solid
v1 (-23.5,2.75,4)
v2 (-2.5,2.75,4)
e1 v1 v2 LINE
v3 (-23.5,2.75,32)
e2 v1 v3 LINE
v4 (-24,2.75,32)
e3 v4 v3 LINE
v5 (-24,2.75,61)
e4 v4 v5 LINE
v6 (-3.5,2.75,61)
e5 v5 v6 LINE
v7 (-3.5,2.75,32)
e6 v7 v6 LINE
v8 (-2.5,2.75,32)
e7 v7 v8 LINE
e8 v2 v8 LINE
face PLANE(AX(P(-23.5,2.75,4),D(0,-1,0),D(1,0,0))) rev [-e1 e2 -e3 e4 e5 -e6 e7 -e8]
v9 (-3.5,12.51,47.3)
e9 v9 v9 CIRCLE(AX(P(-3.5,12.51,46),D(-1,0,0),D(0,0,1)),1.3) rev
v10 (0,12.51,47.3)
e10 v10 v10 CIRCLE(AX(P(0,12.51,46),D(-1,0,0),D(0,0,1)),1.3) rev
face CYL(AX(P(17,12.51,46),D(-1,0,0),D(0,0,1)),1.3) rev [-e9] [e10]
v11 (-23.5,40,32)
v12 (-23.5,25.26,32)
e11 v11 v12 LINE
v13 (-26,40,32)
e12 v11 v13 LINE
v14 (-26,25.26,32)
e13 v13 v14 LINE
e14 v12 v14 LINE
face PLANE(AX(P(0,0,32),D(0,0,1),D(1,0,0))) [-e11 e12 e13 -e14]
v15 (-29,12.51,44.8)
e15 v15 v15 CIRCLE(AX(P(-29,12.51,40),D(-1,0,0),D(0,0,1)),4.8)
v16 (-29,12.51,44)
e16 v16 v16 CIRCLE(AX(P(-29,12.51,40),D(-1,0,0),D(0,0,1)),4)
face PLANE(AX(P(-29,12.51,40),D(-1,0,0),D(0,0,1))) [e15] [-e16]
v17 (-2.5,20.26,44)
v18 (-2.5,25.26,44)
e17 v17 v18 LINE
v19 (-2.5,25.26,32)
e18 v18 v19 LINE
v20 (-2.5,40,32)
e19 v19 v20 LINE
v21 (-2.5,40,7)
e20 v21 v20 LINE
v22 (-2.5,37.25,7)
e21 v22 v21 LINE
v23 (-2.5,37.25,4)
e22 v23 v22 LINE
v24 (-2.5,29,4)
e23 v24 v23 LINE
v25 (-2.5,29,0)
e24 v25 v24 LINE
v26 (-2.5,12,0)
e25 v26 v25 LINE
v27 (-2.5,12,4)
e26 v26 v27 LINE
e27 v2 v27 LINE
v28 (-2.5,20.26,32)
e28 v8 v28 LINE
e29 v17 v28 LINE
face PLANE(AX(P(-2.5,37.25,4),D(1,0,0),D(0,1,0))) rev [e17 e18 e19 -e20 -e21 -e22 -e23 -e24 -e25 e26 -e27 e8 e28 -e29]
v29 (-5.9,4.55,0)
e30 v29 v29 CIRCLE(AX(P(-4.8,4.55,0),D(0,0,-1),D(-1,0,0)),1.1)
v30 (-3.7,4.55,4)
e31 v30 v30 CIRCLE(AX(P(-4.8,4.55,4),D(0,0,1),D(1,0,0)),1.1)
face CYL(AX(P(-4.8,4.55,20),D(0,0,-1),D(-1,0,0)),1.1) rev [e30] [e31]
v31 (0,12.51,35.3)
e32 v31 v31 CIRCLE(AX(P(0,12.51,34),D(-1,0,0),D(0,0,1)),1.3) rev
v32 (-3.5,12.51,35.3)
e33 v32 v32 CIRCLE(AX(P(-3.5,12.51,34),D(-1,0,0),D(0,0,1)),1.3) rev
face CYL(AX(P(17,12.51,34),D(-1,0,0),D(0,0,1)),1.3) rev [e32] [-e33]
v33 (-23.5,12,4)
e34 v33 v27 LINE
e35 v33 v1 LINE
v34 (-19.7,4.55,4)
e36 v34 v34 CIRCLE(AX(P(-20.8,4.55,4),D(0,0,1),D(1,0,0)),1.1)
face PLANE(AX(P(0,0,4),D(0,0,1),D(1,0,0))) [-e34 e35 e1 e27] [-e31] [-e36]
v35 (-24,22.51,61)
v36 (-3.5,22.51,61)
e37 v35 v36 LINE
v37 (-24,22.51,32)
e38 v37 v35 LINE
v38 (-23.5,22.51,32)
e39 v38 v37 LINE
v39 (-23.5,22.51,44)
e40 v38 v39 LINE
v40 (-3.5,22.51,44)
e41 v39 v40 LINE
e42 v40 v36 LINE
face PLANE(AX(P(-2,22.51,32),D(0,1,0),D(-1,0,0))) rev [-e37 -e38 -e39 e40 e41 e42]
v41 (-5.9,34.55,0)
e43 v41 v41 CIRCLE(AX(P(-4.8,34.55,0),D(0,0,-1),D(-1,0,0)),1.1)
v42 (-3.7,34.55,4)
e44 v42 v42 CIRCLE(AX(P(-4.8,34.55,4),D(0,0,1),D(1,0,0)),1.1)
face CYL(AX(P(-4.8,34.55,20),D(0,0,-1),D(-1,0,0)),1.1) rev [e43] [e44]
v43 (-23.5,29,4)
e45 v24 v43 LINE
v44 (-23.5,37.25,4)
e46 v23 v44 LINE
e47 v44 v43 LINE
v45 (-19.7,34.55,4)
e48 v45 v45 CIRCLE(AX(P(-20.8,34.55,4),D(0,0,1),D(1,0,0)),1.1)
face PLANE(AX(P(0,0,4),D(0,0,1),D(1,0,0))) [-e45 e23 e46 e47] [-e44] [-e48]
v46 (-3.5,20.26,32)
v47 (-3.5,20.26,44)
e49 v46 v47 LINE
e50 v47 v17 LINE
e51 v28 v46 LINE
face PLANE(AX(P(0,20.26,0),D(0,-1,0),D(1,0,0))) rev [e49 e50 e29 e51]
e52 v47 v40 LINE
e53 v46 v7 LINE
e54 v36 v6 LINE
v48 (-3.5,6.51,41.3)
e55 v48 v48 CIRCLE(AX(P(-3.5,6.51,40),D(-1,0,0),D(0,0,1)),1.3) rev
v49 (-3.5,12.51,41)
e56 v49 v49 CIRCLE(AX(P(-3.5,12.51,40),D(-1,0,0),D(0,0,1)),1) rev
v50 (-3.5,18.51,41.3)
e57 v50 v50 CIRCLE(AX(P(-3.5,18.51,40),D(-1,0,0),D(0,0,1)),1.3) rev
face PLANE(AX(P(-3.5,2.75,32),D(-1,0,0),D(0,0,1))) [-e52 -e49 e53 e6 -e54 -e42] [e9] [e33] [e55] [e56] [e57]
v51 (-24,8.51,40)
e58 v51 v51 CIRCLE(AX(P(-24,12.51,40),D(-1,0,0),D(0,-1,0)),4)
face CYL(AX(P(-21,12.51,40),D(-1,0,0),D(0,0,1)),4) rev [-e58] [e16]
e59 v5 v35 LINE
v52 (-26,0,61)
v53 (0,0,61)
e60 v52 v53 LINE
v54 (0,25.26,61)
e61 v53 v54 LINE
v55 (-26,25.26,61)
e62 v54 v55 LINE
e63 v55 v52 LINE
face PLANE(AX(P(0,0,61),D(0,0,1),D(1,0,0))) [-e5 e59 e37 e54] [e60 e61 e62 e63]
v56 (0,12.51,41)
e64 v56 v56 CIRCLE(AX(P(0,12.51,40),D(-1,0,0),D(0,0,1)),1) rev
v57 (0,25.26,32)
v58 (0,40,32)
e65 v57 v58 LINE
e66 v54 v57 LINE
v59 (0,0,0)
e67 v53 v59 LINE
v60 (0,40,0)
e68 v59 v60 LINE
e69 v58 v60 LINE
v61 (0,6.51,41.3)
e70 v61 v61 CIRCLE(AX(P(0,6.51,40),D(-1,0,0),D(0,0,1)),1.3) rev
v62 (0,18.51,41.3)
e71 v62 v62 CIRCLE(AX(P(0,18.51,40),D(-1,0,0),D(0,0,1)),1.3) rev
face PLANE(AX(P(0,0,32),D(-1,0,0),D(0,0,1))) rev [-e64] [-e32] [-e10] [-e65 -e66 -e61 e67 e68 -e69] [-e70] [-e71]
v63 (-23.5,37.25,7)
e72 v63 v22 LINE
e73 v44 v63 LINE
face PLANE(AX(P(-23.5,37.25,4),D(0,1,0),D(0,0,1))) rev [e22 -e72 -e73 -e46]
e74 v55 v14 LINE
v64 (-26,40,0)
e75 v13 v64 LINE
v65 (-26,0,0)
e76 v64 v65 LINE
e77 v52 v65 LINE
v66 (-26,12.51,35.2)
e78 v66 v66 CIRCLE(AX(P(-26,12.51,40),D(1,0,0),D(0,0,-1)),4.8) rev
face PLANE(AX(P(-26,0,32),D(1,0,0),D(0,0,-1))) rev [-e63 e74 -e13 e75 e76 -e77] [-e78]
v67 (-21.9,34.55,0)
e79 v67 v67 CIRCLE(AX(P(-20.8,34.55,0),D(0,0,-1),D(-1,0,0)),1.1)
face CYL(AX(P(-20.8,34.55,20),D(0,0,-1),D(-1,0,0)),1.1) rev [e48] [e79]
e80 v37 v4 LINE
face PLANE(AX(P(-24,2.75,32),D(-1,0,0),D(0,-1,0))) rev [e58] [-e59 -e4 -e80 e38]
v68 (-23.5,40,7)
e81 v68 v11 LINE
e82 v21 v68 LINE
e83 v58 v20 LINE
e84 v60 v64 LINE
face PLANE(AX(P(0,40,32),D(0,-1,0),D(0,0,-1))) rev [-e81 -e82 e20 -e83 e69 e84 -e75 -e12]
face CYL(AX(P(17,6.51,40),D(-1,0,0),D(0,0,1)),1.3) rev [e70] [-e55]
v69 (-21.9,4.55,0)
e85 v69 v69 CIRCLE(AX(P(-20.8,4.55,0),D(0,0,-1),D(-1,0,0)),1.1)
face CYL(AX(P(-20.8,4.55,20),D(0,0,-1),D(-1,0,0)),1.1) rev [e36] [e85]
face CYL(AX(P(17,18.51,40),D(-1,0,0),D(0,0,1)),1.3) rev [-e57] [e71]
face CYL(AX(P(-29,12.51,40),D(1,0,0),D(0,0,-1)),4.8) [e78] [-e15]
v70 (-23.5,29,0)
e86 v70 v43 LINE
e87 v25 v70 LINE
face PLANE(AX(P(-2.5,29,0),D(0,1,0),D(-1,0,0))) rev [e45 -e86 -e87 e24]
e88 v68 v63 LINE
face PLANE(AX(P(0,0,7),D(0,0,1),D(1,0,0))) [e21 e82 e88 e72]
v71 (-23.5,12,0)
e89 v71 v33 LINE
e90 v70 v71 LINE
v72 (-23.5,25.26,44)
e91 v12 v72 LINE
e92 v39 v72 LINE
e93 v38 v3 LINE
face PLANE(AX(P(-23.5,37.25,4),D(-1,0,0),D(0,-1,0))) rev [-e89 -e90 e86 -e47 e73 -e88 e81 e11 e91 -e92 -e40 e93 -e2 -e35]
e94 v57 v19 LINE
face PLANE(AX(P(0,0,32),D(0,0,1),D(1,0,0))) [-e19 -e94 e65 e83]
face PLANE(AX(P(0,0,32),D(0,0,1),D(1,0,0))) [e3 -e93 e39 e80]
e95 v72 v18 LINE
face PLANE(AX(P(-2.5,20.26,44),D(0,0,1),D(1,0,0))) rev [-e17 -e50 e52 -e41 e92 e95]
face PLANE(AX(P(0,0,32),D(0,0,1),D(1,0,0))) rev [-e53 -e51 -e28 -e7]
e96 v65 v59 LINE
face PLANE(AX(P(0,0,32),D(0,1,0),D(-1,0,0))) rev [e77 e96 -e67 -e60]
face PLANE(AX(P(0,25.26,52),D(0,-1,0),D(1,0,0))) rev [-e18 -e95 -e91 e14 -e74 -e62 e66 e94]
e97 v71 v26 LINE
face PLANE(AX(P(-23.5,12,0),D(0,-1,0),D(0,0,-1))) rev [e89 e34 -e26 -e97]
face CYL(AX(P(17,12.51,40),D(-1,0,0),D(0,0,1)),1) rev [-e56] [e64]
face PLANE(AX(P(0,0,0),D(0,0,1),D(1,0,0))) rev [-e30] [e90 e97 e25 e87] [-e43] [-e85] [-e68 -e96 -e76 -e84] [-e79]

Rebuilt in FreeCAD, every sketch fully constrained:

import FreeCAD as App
import Part
import Sketcher
Q = App.Units.Quantity


def add_polygon(sketch, points):
    """Adds a closed chain of lines whose ends are joined by coincident constraints."""
    first, n = sketch.GeometryCount, len(points)
    for a, b in zip(points, points[1:] + points[:1]):
        sketch.addGeometry(Part.LineSegment(App.Vector(*a, 0), App.Vector(*b, 0)), False)
    for i in range(n):
        sketch.addConstraint(Sketcher.Constraint("Coincident", first + i, 2, first + (i + 1) % n, 1))

doc = App.newDocument("Part")
body = doc.addObject("PartDesign::Body", "Body")

# Sketch on XY plane
sketch1 = body.newObject("Sketcher::SketchObject", "Sketch")
sketch1.AttachmentSupport = (doc.getObject("XY_Plane"), [""])
sketch1.MapMode = "FlatFace"
add_polygon(sketch1, [(-26, 40), (-26, 0), (0, 0), (0, 40)])  # lines 0-3
sketch1.addConstraint(Sketcher.Constraint("Vertical", 0))
sketch1.addConstraint(Sketcher.Constraint("Horizontal", 1))
sketch1.addConstraint(Sketcher.Constraint("Vertical", 2))
sketch1.addConstraint(Sketcher.Constraint("Horizontal", 3))
sketch1.addConstraint(Sketcher.Constraint("Coincident", 1, 2, -1, 1))
sketch1.addConstraint(Sketcher.Constraint("DistanceX", 1, 1, 1, 2, Q("26 mm")))
sketch1.addConstraint(Sketcher.Constraint("DistanceY", 0, 2, 0, 1, Q("40 mm")))
pad1 = body.newObject("PartDesign::Pad", "Pad")
pad1.Profile = sketch1
pad1.Length = 32

# Sketch on XY plane
sketch2 = body.newObject("Sketcher::SketchObject", "Sketch001")
sketch2.AttachmentSupport = (doc.getObject("XY_Plane"), [""])
sketch2.MapMode = "FlatFace"
sketch2.AttachmentOffset = App.Placement(App.Vector(0, 0, 32), App.Rotation())
add_polygon(sketch2, [(-23.5, 37.25), (-23.5, 2.75), (-2.5, 2.75), (-2.5, 37.25)])  # lines 0-3
sketch2.addConstraint(Sketcher.Constraint("Vertical", 0))
sketch2.addConstraint(Sketcher.Constraint("Horizontal", 1))
sketch2.addConstraint(Sketcher.Constraint("Vertical", 2))
sketch2.addConstraint(Sketcher.Constraint("Horizontal", 3))
sketch2.addConstraint(Sketcher.Constraint("DistanceX", 1, 1, 1, 2, Q("21 mm")))
sketch2.addConstraint(Sketcher.Constraint("DistanceY", 0, 2, 0, 1, Q("34.5 mm")))
sketch2.addConstraint(Sketcher.Constraint("DistanceX", 0, 2, -1, 1, Q("23.5 mm")))
sketch2.addConstraint(Sketcher.Constraint("DistanceY", -1, 1, 0, 2, Q("2.75 mm")))
pocket1 = body.newObject("PartDesign::Pocket", "Pocket")
pocket1.Profile = sketch2
pocket1.Length = 28

# Sketch on XY plane
sketch3 = body.newObject("Sketcher::SketchObject", "Sketch002")
sketch3.AttachmentSupport = (doc.getObject("XY_Plane"), [""])
sketch3.MapMode = "FlatFace"
sketch3.AttachmentOffset = App.Placement(App.Vector(0, 0, 32), App.Rotation())
add_polygon(sketch3, [(-26, 25.26), (-26, 0), (0, 0), (0, 25.26)])  # lines 0-3
sketch3.addConstraint(Sketcher.Constraint("Vertical", 0))
sketch3.addConstraint(Sketcher.Constraint("Horizontal", 1))
sketch3.addConstraint(Sketcher.Constraint("Vertical", 2))
sketch3.addConstraint(Sketcher.Constraint("Horizontal", 3))
sketch3.addConstraint(Sketcher.Constraint("Coincident", 1, 2, -1, 1))
sketch3.addConstraint(Sketcher.Constraint("DistanceX", 1, 1, 1, 2, Q("26 mm")))
sketch3.addConstraint(Sketcher.Constraint("DistanceY", 0, 2, 0, 1, Q("25.26 mm")))
pad2 = body.newObject("PartDesign::Pad", "Pad001")
pad2.Profile = sketch3
pad2.Length = 20

# Sketch on XY plane
sketch4 = body.newObject("Sketcher::SketchObject", "Sketch003")
sketch4.AttachmentSupport = (doc.getObject("XY_Plane"), [""])
sketch4.MapMode = "FlatFace"
sketch4.AttachmentOffset = App.Placement(App.Vector(0, 0, 52), App.Rotation())
add_polygon(sketch4, [(-24, 22.51), (-24, 2.75), (-2, 2.75), (-2, 22.51)])  # lines 0-3
sketch4.addConstraint(Sketcher.Constraint("Vertical", 0))
sketch4.addConstraint(Sketcher.Constraint("Horizontal", 1))
sketch4.addConstraint(Sketcher.Constraint("Vertical", 2))
sketch4.addConstraint(Sketcher.Constraint("Horizontal", 3))
sketch4.addConstraint(Sketcher.Constraint("DistanceX", 1, 1, 1, 2, Q("22 mm")))
sketch4.addConstraint(Sketcher.Constraint("DistanceX", 0, 2, -1, 1, Q("24 mm")))
sketch4.addConstraint(Sketcher.Constraint("DistanceY", 0, 2, 0, 1, Q("19.76 mm")))
sketch4.addConstraint(Sketcher.Constraint("DistanceY", -1, 1, 0, 2, Q("2.75 mm")))
pocket2 = body.newObject("PartDesign::Pocket", "Pocket001")
pocket2.Profile = sketch4
pocket2.Length = 20

# Sketch on XY plane
sketch5 = body.newObject("Sketcher::SketchObject", "Sketch004")
sketch5.AttachmentSupport = (doc.getObject("XY_Plane"), [""])
sketch5.MapMode = "FlatFace"
sketch5.AttachmentOffset = App.Placement(App.Vector(0, 0, 32), App.Rotation())
add_polygon(sketch5, [(-23.5, 40), (-23.5, 37.25), (-2.5, 37.25), (-2.5, 40)])  # lines 0-3
sketch5.addConstraint(Sketcher.Constraint("Vertical", 0))
sketch5.addConstraint(Sketcher.Constraint("Horizontal", 1))
sketch5.addConstraint(Sketcher.Constraint("Vertical", 2))
sketch5.addConstraint(Sketcher.Constraint("Horizontal", 3))
sketch5.addConstraint(Sketcher.Constraint("DistanceX", 1, 1, 1, 2, Q("21 mm")))
sketch5.addConstraint(Sketcher.Constraint("DistanceY", -1, 1, 2, 2, Q("40 mm")))
sketch5.addConstraint(Sketcher.Constraint("DistanceY", 0, 2, 0, 1, Q("2.75 mm")))
sketch5.addConstraint(Sketcher.Constraint("DistanceX", 0, 2, -1, 1, Q("23.5 mm")))
pocket3 = body.newObject("PartDesign::Pocket", "Pocket002")
pocket3.Profile = sketch5
pocket3.Length = 25

# Sketch on XY plane
sketch6 = body.newObject("Sketcher::SketchObject", "Sketch005")
sketch6.AttachmentSupport = (doc.getObject("XY_Plane"), [""])
sketch6.MapMode = "FlatFace"
sketch6.addGeometry(Part.Circle(App.Vector(-4.8, 4.55, 0), App.Vector(0, 0, 1), 1.1), False)
sketch6.addGeometry(Part.Circle(App.Vector(-20.8, 4.55, 0), App.Vector(0, 0, 1), 1.1), False)
sketch6.addGeometry(Part.Circle(App.Vector(-20.8, 34.55, 0), App.Vector(0, 0, 1), 1.1), False)
sketch6.addGeometry(Part.Circle(App.Vector(-4.8, 34.55, 0), App.Vector(0, 0, 1), 1.1), False)
sketch6.addConstraint(Sketcher.Constraint("Equal", 0, 1))
sketch6.addConstraint(Sketcher.Constraint("Equal", 1, 2))
sketch6.addConstraint(Sketcher.Constraint("Equal", 2, 3))
sketch6.addConstraint(Sketcher.Constraint("Horizontal", 0, 3, 1, 3))
sketch6.addConstraint(Sketcher.Constraint("Horizontal", 2, 3, 3, 3))
sketch6.addConstraint(Sketcher.Constraint("Vertical", 1, 3, 2, 3))
sketch6.addConstraint(Sketcher.Constraint("Vertical", 0, 3, 3, 3))
sketch6.addConstraint(Sketcher.Constraint("Diameter", 0, Q("2.2 mm")))
sketch6.addConstraint(Sketcher.Constraint("DistanceX", 1, 3, 0, 3, Q("16 mm")))
sketch6.addConstraint(Sketcher.Constraint("DistanceY", 1, 3, 2, 3, Q("30 mm")))
sketch6.addConstraint(Sketcher.Constraint("DistanceX", 0, 3, -1, 1, Q("4.8 mm")))
sketch6.addConstraint(Sketcher.Constraint("DistanceY", -1, 1, 0, 3, Q("4.55 mm")))
pocket4 = body.newObject("PartDesign::Pocket", "Pocket003")
pocket4.Profile = sketch6
pocket4.Length = 20
pocket4.Reversed = True

# Sketch on YZ plane
sketch7 = body.newObject("Sketcher::SketchObject", "Sketch006")
sketch7.AttachmentSupport = (doc.getObject("YZ_Plane"), [""])
sketch7.MapMode = "FlatFace"
sketch7.AttachmentOffset = App.Placement(App.Vector(0, 0, -26), App.Rotation())
sketch7.addGeometry(Part.Circle(App.Vector(12.51, 40, 0), App.Vector(0, 0, 1), 4), False)
sketch7.addConstraint(Sketcher.Constraint("Diameter", 0, Q("8 mm")))
sketch7.addConstraint(Sketcher.Constraint("DistanceY", -1, 1, 0, 3, Q("40 mm")))
sketch7.addConstraint(Sketcher.Constraint("DistanceX", -1, 1, 0, 3, Q("12.51 mm")))
pocket5 = body.newObject("PartDesign::Pocket", "Pocket004")
pocket5.Profile = sketch7
pocket5.Length = 5
pocket5.Reversed = True

# Sketch on XY plane
sketch8 = body.newObject("Sketcher::SketchObject", "Sketch007")
sketch8.AttachmentSupport = (doc.getObject("XY_Plane"), [""])
sketch8.MapMode = "FlatFace"
sketch8.AttachmentOffset = App.Placement(App.Vector(0, 0, 52), App.Rotation())
add_polygon(sketch8, [(-26, 25.26), (-26, 0), (0, 0), (0, 25.26)])  # lines 0-3
sketch8.addConstraint(Sketcher.Constraint("Vertical", 0))
sketch8.addConstraint(Sketcher.Constraint("Horizontal", 1))
sketch8.addConstraint(Sketcher.Constraint("Vertical", 2))
sketch8.addConstraint(Sketcher.Constraint("Horizontal", 3))
sketch8.addConstraint(Sketcher.Constraint("Coincident", 1, 2, -1, 1))
sketch8.addConstraint(Sketcher.Constraint("DistanceX", 1, 1, 1, 2, Q("26 mm")))
sketch8.addConstraint(Sketcher.Constraint("DistanceY", 0, 2, 0, 1, Q("25.26 mm")))
pocket6 = body.newObject("PartDesign::Pocket", "Pocket005")
pocket6.Profile = sketch8
pocket6.Length = 3

# Sketch on YZ plane
sketch9 = body.newObject("Sketcher::SketchObject", "Sketch008")
sketch9.AttachmentSupport = (doc.getObject("YZ_Plane"), [""])
sketch9.MapMode = "FlatFace"
sketch9.AttachmentOffset = App.Placement(App.Vector(0, 0, -26), App.Rotation())
sketch9.addGeometry(Part.Circle(App.Vector(12.51, 40, 0), App.Vector(0, 0, 1), 4.8), False)
sketch9.addGeometry(Part.Circle(App.Vector(12.51, 40, 0), App.Vector(0, 0, 1), 4), False)
sketch9.addConstraint(Sketcher.Constraint("Coincident", 1, 3, 0, 3))
sketch9.addConstraint(Sketcher.Constraint("Diameter", 1, Q("8 mm")))
sketch9.addConstraint(Sketcher.Constraint("Diameter", 0, Q("9.6 mm")))
sketch9.addConstraint(Sketcher.Constraint("DistanceY", -1, 1, 0, 3, Q("40 mm")))
sketch9.addConstraint(Sketcher.Constraint("DistanceX", -1, 1, 0, 3, Q("12.51 mm")))
pad3 = body.newObject("PartDesign::Pad", "Pad002")
pad3.Profile = sketch9
pad3.Length = 3
pad3.Reversed = True

# Sketch on XY plane
sketch10 = body.newObject("Sketcher::SketchObject", "Sketch009")
sketch10.AttachmentSupport = (doc.getObject("XY_Plane"), [""])
sketch10.MapMode = "FlatFace"
sketch10.AttachmentOffset = App.Placement(App.Vector(0, 0, 4), App.Rotation())
add_polygon(sketch10, [(-23.5, 12), (-2.5, 12), (-2.5, 29), (-23.5, 29)])  # lines 0-3
sketch10.addConstraint(Sketcher.Constraint("Horizontal", 0))
sketch10.addConstraint(Sketcher.Constraint("Vertical", 1))
sketch10.addConstraint(Sketcher.Constraint("Horizontal", 2))
sketch10.addConstraint(Sketcher.Constraint("Vertical", 3))
sketch10.addConstraint(Sketcher.Constraint("DistanceX", 0, 1, 0, 2, Q("21 mm")))
sketch10.addConstraint(Sketcher.Constraint("DistanceY", 1, 1, 1, 2, Q("17 mm")))
sketch10.addConstraint(Sketcher.Constraint("DistanceY", -1, 1, 0, 2, Q("12 mm")))
sketch10.addConstraint(Sketcher.Constraint("DistanceX", 0, 2, -1, 1, Q("2.5 mm")))
pocket7 = body.newObject("PartDesign::Pocket", "Pocket006")
pocket7.Profile = sketch10
pocket7.Type = "ThroughAll"

# Sketch on XY plane
sketch11 = body.newObject("Sketcher::SketchObject", "Sketch010")
sketch11.AttachmentSupport = (doc.getObject("XY_Plane"), [""])
sketch11.MapMode = "FlatFace"
sketch11.AttachmentOffset = App.Placement(App.Vector(0, 0, 49), App.Rotation())
add_polygon(sketch11, [(-3.5, 22.51), (-3.5, 2.75), (-2, 2.75), (-2, 22.51)])  # lines 0-3
sketch11.addConstraint(Sketcher.Constraint("Vertical", 0))
sketch11.addConstraint(Sketcher.Constraint("Horizontal", 1))
sketch11.addConstraint(Sketcher.Constraint("Vertical", 2))
sketch11.addConstraint(Sketcher.Constraint("Horizontal", 3))
sketch11.addConstraint(Sketcher.Constraint("DistanceX", 1, 1, 1, 2, Q("1.5 mm")))
sketch11.addConstraint(Sketcher.Constraint("DistanceX", 1, 2, -1, 1, Q("2 mm")))
sketch11.addConstraint(Sketcher.Constraint("DistanceY", 0, 2, 0, 1, Q("19.76 mm")))
sketch11.addConstraint(Sketcher.Constraint("DistanceY", -1, 1, 0, 2, Q("2.75 mm")))
pad4 = body.newObject("PartDesign::Pad", "Pad003")
pad4.Profile = sketch11
pad4.Length = 17
pad4.Reversed = True

# Sketch on YZ plane
sketch12 = body.newObject("Sketcher::SketchObject", "Sketch011")
sketch12.AttachmentSupport = (doc.getObject("YZ_Plane"), [""])
sketch12.MapMode = "FlatFace"
sketch12.addGeometry(Part.Circle(App.Vector(12.51, 40, 0), App.Vector(0, 0, 1), 1), False)
sketch12.addGeometry(Part.Circle(App.Vector(12.51, 46, 0), App.Vector(0, 0, 1), 1.3), False)
sketch12.addGeometry(Part.Circle(App.Vector(12.51, 34, 0), App.Vector(0, 0, 1), 1.3), False)
sketch12.addGeometry(Part.Circle(App.Vector(18.51, 40, 0), App.Vector(0, 0, 1), 1.3), False)
sketch12.addGeometry(Part.Circle(App.Vector(6.51, 40, 0), App.Vector(0, 0, 1), 1.3), False)
sketch12.addConstraint(Sketcher.Constraint("Equal", 1, 2))
sketch12.addConstraint(Sketcher.Constraint("Equal", 2, 3))
sketch12.addConstraint(Sketcher.Constraint("Equal", 3, 4))
sketch12.addConstraint(Sketcher.Constraint("Horizontal", 0, 3, 3, 3))
sketch12.addConstraint(Sketcher.Constraint("Horizontal", 3, 3, 4, 3))
sketch12.addConstraint(Sketcher.Constraint("Vertical", 0, 3, 1, 3))
sketch12.addConstraint(Sketcher.Constraint("Vertical", 1, 3, 2, 3))
sketch12.addConstraint(Sketcher.Constraint("Diameter", 0, Q("2 mm")))
sketch12.addConstraint(Sketcher.Constraint("Diameter", 1, Q("2.6 mm")))
sketch12.addConstraint(Sketcher.Constraint("DistanceY", -1, 1, 0, 3, Q("40 mm")))
sketch12.addConstraint(Sketcher.Constraint("DistanceY", -1, 1, 1, 3, Q("46 mm")))
sketch12.addConstraint(Sketcher.Constraint("DistanceY", -1, 1, 2, 3, Q("34 mm")))
sketch12.addConstraint(Sketcher.Constraint("DistanceX", 0, 3, 3, 3, Q("6 mm")))
sketch12.addConstraint(Sketcher.Constraint("DistanceX", 4, 3, 0, 3, Q("6 mm")))
sketch12.addConstraint(Sketcher.Constraint("DistanceX", -1, 1, 0, 3, Q("12.51 mm")))
pocket8 = body.newObject("PartDesign::Pocket", "Pocket007")
pocket8.Profile = sketch12
pocket8.Type = "TwoLengths"
pocket8.Length = 17
pocket8.Length2 = 15
pocket8.Reversed = True

# Sketch on XY plane
sketch13 = body.newObject("Sketcher::SketchObject", "Sketch012")
sketch13.AttachmentSupport = (doc.getObject("XY_Plane"), [""])
sketch13.MapMode = "FlatFace"
sketch13.AttachmentOffset = App.Placement(App.Vector(0, 0, 49), App.Rotation())
add_polygon(sketch13, [(-26, 25.26), (-26, 0), (0, 0), (0, 25.26)])  # lines 0-3
add_polygon(sketch13, [(-3.5, 2.75), (-24, 2.75), (-24, 22.51), (-3.5, 22.51)])  # lines 4-7
sketch13.addConstraint(Sketcher.Constraint("Vertical", 0))
sketch13.addConstraint(Sketcher.Constraint("Horizontal", 1))
sketch13.addConstraint(Sketcher.Constraint("Vertical", 2))
sketch13.addConstraint(Sketcher.Constraint("Horizontal", 3))
sketch13.addConstraint(Sketcher.Constraint("Horizontal", 4))
sketch13.addConstraint(Sketcher.Constraint("Vertical", 5))
sketch13.addConstraint(Sketcher.Constraint("Horizontal", 6))
sketch13.addConstraint(Sketcher.Constraint("Vertical", 7))
sketch13.addConstraint(Sketcher.Constraint("Coincident", 1, 2, -1, 1))
sketch13.addConstraint(Sketcher.Constraint("DistanceX", 1, 1, 1, 2, Q("26 mm")))
sketch13.addConstraint(Sketcher.Constraint("DistanceX", 4, 2, 4, 1, Q("20.5 mm")))
sketch13.addConstraint(Sketcher.Constraint("DistanceX", 4, 2, -1, 1, Q("24 mm")))
sketch13.addConstraint(Sketcher.Constraint("DistanceY", 0, 2, 0, 1, Q("25.26 mm")))
sketch13.addConstraint(Sketcher.Constraint("DistanceY", 5, 1, 5, 2, Q("19.76 mm")))
sketch13.addConstraint(Sketcher.Constraint("DistanceY", -1, 1, 4, 2, Q("2.75 mm")))
pad5 = body.newObject("PartDesign::Pad", "Pad004")
pad5.Profile = sketch13
pad5.Length = 12

# Sketch on XZ plane
sketch14 = body.newObject("Sketcher::SketchObject", "Sketch013")
sketch14.AttachmentSupport = (doc.getObject("XZ_Plane"), [""])
sketch14.MapMode = "FlatFace"
sketch14.AttachmentOffset = App.Placement(App.Vector(0, 0, -25.26), App.Rotation())
add_polygon(sketch14, [(-23.5, 32), (-23.5, 44), (-2.5, 44), (-2.5, 32)])  # lines 0-3
sketch14.addConstraint(Sketcher.Constraint("Vertical", 0))
sketch14.addConstraint(Sketcher.Constraint("Horizontal", 1))
sketch14.addConstraint(Sketcher.Constraint("Vertical", 2))
sketch14.addConstraint(Sketcher.Constraint("Horizontal", 3))
sketch14.addConstraint(Sketcher.Constraint("DistanceX", 1, 1, 1, 2, Q("21 mm")))
sketch14.addConstraint(Sketcher.Constraint("DistanceY", 0, 1, 0, 2, Q("12 mm")))
sketch14.addConstraint(Sketcher.Constraint("DistanceY", -1, 1, 0, 2, Q("44 mm")))
sketch14.addConstraint(Sketcher.Constraint("DistanceX", 0, 2, -1, 1, Q("23.5 mm")))
pocket9 = body.newObject("PartDesign::Pocket", "Pocket008")
pocket9.Profile = sketch14
pocket9.Length = 5
pocket9.Reversed = True

doc.recompute()
